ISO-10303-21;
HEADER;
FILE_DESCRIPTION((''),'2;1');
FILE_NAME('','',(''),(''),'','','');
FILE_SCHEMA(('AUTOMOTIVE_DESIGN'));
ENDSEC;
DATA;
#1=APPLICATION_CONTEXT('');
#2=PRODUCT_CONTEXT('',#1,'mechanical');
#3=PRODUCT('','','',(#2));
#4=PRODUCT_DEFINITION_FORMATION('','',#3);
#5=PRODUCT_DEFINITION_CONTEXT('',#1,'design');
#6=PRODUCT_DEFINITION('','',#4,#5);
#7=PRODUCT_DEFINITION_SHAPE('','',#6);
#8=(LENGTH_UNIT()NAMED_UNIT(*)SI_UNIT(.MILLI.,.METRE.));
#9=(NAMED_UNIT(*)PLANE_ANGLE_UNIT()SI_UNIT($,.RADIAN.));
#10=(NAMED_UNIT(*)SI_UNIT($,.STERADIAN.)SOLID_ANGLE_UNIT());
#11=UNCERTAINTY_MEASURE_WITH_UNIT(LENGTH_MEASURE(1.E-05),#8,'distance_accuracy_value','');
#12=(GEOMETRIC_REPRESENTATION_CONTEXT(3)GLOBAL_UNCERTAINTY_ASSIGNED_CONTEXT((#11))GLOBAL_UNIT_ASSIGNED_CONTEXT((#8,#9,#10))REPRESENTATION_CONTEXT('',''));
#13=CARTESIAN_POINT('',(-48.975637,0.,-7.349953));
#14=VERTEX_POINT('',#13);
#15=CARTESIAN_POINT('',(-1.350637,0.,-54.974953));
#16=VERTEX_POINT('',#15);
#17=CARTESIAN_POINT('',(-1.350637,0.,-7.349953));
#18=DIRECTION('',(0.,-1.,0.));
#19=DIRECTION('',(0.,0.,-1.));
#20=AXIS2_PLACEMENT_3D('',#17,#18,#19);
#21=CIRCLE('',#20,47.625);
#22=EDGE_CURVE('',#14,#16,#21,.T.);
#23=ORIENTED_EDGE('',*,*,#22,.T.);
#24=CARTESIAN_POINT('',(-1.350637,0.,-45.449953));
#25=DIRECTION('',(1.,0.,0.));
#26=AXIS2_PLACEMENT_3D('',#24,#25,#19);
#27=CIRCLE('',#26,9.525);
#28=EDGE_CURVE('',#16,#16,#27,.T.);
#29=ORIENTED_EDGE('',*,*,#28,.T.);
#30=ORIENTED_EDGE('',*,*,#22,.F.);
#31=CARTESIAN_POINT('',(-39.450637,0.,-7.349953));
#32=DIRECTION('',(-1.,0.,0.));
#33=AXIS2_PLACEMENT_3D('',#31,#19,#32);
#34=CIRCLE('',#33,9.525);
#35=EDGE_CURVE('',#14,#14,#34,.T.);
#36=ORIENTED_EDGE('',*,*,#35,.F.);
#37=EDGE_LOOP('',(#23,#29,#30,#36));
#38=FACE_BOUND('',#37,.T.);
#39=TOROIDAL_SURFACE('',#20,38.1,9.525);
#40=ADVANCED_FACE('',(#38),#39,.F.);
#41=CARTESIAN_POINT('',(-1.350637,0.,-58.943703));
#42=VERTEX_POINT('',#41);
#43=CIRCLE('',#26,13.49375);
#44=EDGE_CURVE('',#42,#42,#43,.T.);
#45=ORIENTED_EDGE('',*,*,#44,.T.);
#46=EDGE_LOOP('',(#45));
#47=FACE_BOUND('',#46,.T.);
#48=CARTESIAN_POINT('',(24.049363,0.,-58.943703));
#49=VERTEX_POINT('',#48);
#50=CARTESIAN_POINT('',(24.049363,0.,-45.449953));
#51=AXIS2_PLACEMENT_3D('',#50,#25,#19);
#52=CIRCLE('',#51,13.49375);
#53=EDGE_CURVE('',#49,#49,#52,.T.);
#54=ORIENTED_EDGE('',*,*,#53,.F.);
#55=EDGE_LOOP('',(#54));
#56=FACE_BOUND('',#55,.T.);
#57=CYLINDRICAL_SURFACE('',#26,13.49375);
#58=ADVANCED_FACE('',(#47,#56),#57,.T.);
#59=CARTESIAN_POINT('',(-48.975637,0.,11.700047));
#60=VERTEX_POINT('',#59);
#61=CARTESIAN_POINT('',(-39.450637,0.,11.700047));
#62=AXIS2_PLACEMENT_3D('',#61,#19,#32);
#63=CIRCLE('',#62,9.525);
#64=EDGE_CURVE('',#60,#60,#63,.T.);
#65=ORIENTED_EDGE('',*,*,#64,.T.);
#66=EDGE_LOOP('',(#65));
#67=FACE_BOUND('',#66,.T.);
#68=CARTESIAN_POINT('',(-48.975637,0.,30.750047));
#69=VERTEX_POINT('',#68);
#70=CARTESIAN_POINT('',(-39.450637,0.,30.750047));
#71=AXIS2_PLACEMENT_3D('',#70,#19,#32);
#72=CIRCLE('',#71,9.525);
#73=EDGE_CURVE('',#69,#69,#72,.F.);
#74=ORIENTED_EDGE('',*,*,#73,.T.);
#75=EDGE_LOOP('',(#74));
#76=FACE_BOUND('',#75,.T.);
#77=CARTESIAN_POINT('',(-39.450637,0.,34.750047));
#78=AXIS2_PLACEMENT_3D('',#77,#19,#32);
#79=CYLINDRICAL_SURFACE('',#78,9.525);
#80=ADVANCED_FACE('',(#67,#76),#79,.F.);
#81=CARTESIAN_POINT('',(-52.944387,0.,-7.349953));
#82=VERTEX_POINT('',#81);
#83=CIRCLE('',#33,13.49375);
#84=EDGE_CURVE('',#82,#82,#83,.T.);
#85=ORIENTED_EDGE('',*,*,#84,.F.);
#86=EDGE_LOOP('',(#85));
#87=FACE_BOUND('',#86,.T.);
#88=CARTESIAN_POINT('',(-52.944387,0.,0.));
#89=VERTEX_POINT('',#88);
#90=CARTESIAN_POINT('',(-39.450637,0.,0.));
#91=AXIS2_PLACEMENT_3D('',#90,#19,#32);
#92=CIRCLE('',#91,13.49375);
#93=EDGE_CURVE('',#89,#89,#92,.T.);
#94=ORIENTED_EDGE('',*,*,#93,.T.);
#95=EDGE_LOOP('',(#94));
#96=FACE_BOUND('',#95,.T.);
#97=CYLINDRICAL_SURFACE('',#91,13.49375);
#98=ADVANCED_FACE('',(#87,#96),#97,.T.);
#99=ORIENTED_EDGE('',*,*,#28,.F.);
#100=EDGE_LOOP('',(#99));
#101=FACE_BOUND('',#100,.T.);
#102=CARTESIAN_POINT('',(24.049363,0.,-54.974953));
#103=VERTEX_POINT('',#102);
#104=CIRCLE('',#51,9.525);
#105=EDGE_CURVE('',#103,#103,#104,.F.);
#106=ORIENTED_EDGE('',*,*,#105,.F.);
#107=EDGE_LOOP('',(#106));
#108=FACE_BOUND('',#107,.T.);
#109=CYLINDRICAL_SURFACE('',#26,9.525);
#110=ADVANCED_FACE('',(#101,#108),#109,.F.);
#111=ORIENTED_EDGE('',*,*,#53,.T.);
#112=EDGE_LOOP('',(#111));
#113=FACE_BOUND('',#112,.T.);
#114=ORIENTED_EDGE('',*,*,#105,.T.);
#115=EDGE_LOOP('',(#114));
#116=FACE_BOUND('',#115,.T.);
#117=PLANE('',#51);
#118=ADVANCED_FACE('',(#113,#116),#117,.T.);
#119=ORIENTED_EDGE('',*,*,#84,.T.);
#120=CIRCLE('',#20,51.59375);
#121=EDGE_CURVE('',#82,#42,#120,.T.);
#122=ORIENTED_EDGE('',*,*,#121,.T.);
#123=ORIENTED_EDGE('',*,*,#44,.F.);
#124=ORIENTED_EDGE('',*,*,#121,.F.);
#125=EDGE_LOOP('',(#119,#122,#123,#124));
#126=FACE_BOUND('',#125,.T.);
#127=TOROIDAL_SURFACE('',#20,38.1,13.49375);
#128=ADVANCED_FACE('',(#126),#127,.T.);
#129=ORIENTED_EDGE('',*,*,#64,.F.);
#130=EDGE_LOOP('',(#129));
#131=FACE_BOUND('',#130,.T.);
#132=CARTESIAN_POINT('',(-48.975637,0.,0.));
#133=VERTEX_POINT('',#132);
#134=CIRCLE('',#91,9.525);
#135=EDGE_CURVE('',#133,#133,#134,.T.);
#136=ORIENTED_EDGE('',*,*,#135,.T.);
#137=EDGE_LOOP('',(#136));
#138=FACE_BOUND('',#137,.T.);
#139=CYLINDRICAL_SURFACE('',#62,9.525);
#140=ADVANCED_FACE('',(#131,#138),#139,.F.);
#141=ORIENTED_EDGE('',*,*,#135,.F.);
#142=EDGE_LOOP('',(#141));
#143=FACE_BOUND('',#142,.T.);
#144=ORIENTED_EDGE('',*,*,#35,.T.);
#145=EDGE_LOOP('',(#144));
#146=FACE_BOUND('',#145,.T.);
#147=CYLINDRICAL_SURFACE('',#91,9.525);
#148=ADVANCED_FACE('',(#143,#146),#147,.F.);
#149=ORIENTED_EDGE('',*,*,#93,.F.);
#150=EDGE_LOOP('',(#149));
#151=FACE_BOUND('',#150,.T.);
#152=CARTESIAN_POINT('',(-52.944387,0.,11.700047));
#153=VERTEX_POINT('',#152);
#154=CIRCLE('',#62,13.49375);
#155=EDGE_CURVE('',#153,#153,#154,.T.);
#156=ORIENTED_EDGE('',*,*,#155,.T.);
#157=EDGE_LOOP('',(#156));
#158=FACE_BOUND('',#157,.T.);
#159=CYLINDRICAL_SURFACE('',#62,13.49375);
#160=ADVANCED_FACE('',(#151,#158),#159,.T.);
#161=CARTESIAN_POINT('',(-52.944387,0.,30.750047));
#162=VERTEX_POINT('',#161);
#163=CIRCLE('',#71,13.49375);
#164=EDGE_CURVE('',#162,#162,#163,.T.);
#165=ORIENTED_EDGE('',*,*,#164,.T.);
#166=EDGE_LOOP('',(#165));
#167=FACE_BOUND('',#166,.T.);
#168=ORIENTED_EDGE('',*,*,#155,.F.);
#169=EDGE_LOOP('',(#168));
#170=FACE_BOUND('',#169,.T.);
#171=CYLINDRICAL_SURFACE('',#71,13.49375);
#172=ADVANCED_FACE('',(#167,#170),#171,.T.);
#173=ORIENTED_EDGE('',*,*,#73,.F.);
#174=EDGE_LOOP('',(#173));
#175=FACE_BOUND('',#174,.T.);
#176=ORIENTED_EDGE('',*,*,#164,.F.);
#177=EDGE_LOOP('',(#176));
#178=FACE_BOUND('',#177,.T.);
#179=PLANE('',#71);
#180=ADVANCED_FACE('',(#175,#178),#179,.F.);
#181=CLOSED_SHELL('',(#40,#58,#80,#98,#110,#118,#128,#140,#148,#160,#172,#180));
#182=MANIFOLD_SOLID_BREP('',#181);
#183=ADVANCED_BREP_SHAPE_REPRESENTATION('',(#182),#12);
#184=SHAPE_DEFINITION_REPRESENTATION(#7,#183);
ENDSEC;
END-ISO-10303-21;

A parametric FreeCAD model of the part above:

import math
import FreeCAD as App
import Part
import Sketcher

V = App.Vector
Q = App.Units.Quantity

doc = App.newDocument("Part")
body = doc.addObject("PartDesign::Body", "Body")

# Sketch on XY plane
sketch1 = body.newObject("Sketcher::SketchObject", "Sketch")
sketch1.AttachmentSupport = (doc.getObject("XY_Plane"), [""])
sketch1.MapMode = "FlatFace"
sketch1.AttachmentOffset = App.Placement(V(0, 0, 30.750047), App.Rotation())
sketch1.addGeometry(Part.Circle(V(-39, 0, 0), V(0, 0, 1), 13), False)
sketch1.addConstraint(Sketcher.Constraint("PointOnObject", 0, 3, -1))
sketch1.addConstraint(Sketcher.Constraint("Diameter", 0, Q("1.0625 in")))
sketch1.addConstraint(Sketcher.Constraint("DistanceX", 0, 3, -1, 1, Q("39.450637 mm")))

# Sketch on XZ plane
sketch2 = body.newObject("Sketcher::SketchObject", "Sketch001")
sketch2.AttachmentSupport = (doc.getObject("XZ_Plane"), [""])
sketch2.MapMode = "FlatFace"
sketch2.addGeometry(Part.LineSegment(V(-39, 31, 0), V(-39, 12, 0)), False)
sketch2.addGeometry(Part.LineSegment(V(-39, 12, 0), V(-39, -7, 0)), False)
sketch2.addGeometry(Part.ArcOfCircle(Part.Circle(V(-1, -7, 0), V(0, 0, 1), 38), math.radians(-180), math.radians(-90)), False)
sketch2.addGeometry(Part.LineSegment(V(-1, -45, 0), V(24, -45, 0)), False)
sketch2.addConstraint(Sketcher.Constraint("Coincident", 0, 2, 1, 1))
sketch2.addConstraint(Sketcher.Constraint("Tangent", 1, 2, 2, 1))
sketch2.addConstraint(Sketcher.Constraint("Tangent", 2, 2, 3, 1))
sketch2.addConstraint(Sketcher.Constraint("Vertical", 0))
sketch2.addConstraint(Sketcher.Constraint("Vertical", 1))
sketch2.addConstraint(Sketcher.Constraint("Horizontal", 3))
sketch2.addConstraint(Sketcher.Constraint("Equal", 0, 1))
sketch2.addConstraint(Sketcher.Constraint("Radius", 2, Q("1.5 in")))
sketch2.addConstraint(Sketcher.Constraint("DistanceX", 3, 1, 3, 2, Q("1 in")))
sketch2.addConstraint(Sketcher.Constraint("DistanceY", 2, 2, 0, 1, Q("3 in")))
sketch2.addConstraint(Sketcher.Constraint("DistanceX", 2, 3, -1, 1, Q("1.350637 mm")))
sketch2.addConstraint(Sketcher.Constraint("DistanceY", 2, 3, -1, 1, Q("7.349953 mm")))
doc.recompute()

additivepipe = body.newObject("PartDesign::AdditivePipe", "AdditivePipe")
additivepipe.Profile = sketch1
additivepipe.Spine = (sketch2, ["Edge1", "Edge2", "Edge3", "Edge4"])

# Sketch on XY plane
sketch3 = body.newObject("Sketcher::SketchObject", "Sketch002")
sketch3.AttachmentSupport = (doc.getObject("XY_Plane"), [""])
sketch3.MapMode = "FlatFace"
sketch3.AttachmentOffset = App.Placement(V(0, 0, 30.750047), App.Rotation())
sketch3.addGeometry(Part.Circle(V(-39, 0, 0), V(0, 0, 1), 10), False)
sketch3.addConstraint(Sketcher.Constraint("PointOnObject", 0, 3, -1))
sketch3.addConstraint(Sketcher.Constraint("Diameter", 0, Q("0.75 in")))
sketch3.addConstraint(Sketcher.Constraint("DistanceX", 0, 3, -1, 1, Q("39.450637 mm")))

# Sketch on XZ plane
sketch4 = body.newObject("Sketcher::SketchObject", "Sketch003")
sketch4.AttachmentSupport = (doc.getObject("XZ_Plane"), [""])
sketch4.MapMode = "FlatFace"
sketch4.addGeometry(Part.LineSegment(V(-39, 31, 0), V(-39, 12, 0)), False)
sketch4.addGeometry(Part.LineSegment(V(-39, 12, 0), V(-39, -7, 0)), False)
sketch4.addGeometry(Part.ArcOfCircle(Part.Circle(V(-1, -7, 0), V(0, 0, 1), 38), math.radians(-180), math.radians(-90)), False)
sketch4.addGeometry(Part.LineSegment(V(-1, -45, 0), V(24, -45, 0)), False)
sketch4.addConstraint(Sketcher.Constraint("Coincident", 0, 2, 1, 1))
sketch4.addConstraint(Sketcher.Constraint("Tangent", 1, 2, 2, 1))
sketch4.addConstraint(Sketcher.Constraint("Tangent", 2, 2, 3, 1))
sketch4.addConstraint(Sketcher.Constraint("Vertical", 0))
sketch4.addConstraint(Sketcher.Constraint("Vertical", 1))
sketch4.addConstraint(Sketcher.Constraint("Horizontal", 3))
sketch4.addConstraint(Sketcher.Constraint("Equal", 0, 1))
sketch4.addConstraint(Sketcher.Constraint("Radius", 2, Q("1.5 in")))
sketch4.addConstraint(Sketcher.Constraint("DistanceX", 3, 1, 3, 2, Q("1 in")))
sketch4.addConstraint(Sketcher.Constraint("DistanceY", 2, 2, 0, 1, Q("3 in")))
sketch4.addConstraint(Sketcher.Constraint("DistanceX", 2, 3, -1, 1, Q("1.350637 mm")))
sketch4.addConstraint(Sketcher.Constraint("DistanceY", 2, 3, -1, 1, Q("7.349953 mm")))
doc.recompute()

subtractivepipe = body.newObject("PartDesign::SubtractivePipe", "SubtractivePipe")
subtractivepipe.Profile = sketch3
subtractivepipe.Spine = (sketch4, ["Edge1", "Edge2", "Edge3", "Edge4"])

doc.recompute()
